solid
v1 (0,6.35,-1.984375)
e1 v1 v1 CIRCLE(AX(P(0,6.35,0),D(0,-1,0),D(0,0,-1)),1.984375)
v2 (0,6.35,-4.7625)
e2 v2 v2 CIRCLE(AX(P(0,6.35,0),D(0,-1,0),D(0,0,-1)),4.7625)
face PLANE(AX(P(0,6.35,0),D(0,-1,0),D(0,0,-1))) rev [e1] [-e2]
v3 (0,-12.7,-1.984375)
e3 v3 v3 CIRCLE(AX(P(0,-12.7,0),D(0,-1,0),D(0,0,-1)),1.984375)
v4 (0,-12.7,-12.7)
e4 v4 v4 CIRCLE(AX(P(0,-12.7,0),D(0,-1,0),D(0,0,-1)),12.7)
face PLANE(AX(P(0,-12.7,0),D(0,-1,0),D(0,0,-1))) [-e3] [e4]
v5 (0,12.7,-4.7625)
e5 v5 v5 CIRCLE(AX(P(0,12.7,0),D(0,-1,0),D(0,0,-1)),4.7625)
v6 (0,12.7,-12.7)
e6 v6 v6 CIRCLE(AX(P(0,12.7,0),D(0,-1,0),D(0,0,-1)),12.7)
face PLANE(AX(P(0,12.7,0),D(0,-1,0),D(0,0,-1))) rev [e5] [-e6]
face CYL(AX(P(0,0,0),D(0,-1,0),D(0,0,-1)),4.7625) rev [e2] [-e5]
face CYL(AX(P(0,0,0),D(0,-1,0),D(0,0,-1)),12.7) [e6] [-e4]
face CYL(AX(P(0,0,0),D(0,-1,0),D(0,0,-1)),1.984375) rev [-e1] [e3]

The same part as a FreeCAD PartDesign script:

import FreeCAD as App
import Part
import Sketcher
Q = App.Units.Quantity


def add_polygon(sketch, points):
    """Adds a closed chain of lines whose ends are joined by coincident constraints."""
    first, n = sketch.GeometryCount, len(points)
    for a, b in zip(points, points[1:] + points[:1]):
        sketch.addGeometry(Part.LineSegment(App.Vector(*a, 0), App.Vector(*b, 0)), False)
    for i in range(n):
        sketch.addConstraint(Sketcher.Constraint("Coincident", first + i, 2, first + (i + 1) % n, 1))

doc = App.newDocument("Part")
body = doc.addObject("PartDesign::Body", "Body")

sketch1 = body.newObject("Sketcher::SketchObject", "Sketch")
sketch1.AttachmentSupport = (doc.getObject("XY_Plane"), [""])
sketch1.MapMode = "FlatFace"
add_polygon(sketch1, [(1.984375, 6.35), (1.984375, -12.7), (12.7, -12.7), (12.7, 12.7), (4.7625, 12.7), (4.7625, 6.35)])
sketch1.addConstraint(Sketcher.Constraint("Vertical", 0))
sketch1.addConstraint(Sketcher.Constraint("Horizontal", 1))
sketch1.addConstraint(Sketcher.Constraint("Vertical", 2))
sketch1.addConstraint(Sketcher.Constraint("Horizontal", 3))
sketch1.addConstraint(Sketcher.Constraint("Vertical", 4))
sketch1.addConstraint(Sketcher.Constraint("Horizontal", 5))
sketch1.addConstraint(Sketcher.Constraint("DistanceY", 2, 1, 2, 2, Q("1 in")))
sketch1.addConstraint(Sketcher.Constraint("DistanceY", 0, 2, 0, 1, Q("0.75 in")))
sketch1.addConstraint(Sketcher.Constraint("DistanceY", 0, 2, -1, 1, Q("0.5 in")))
sketch1.addConstraint(Sketcher.Constraint("DistanceX", -1, 1, 1, 2, Q("0.5 in")))
sketch1.addConstraint(Sketcher.Constraint("DistanceX", 1, 1, 1, 2, Q("0.421875 in")))
sketch1.addConstraint(Sketcher.Constraint("DistanceX", 3, 2, 3, 1, Q("0.3125 in")))
revolution = body.newObject("PartDesign::Revolution", "Revolution")
revolution.Profile = sketch1
revolution.ReferenceAxis = (sketch1, ["V_Axis"])
revolution.Angle = 360

doc.recompute()
